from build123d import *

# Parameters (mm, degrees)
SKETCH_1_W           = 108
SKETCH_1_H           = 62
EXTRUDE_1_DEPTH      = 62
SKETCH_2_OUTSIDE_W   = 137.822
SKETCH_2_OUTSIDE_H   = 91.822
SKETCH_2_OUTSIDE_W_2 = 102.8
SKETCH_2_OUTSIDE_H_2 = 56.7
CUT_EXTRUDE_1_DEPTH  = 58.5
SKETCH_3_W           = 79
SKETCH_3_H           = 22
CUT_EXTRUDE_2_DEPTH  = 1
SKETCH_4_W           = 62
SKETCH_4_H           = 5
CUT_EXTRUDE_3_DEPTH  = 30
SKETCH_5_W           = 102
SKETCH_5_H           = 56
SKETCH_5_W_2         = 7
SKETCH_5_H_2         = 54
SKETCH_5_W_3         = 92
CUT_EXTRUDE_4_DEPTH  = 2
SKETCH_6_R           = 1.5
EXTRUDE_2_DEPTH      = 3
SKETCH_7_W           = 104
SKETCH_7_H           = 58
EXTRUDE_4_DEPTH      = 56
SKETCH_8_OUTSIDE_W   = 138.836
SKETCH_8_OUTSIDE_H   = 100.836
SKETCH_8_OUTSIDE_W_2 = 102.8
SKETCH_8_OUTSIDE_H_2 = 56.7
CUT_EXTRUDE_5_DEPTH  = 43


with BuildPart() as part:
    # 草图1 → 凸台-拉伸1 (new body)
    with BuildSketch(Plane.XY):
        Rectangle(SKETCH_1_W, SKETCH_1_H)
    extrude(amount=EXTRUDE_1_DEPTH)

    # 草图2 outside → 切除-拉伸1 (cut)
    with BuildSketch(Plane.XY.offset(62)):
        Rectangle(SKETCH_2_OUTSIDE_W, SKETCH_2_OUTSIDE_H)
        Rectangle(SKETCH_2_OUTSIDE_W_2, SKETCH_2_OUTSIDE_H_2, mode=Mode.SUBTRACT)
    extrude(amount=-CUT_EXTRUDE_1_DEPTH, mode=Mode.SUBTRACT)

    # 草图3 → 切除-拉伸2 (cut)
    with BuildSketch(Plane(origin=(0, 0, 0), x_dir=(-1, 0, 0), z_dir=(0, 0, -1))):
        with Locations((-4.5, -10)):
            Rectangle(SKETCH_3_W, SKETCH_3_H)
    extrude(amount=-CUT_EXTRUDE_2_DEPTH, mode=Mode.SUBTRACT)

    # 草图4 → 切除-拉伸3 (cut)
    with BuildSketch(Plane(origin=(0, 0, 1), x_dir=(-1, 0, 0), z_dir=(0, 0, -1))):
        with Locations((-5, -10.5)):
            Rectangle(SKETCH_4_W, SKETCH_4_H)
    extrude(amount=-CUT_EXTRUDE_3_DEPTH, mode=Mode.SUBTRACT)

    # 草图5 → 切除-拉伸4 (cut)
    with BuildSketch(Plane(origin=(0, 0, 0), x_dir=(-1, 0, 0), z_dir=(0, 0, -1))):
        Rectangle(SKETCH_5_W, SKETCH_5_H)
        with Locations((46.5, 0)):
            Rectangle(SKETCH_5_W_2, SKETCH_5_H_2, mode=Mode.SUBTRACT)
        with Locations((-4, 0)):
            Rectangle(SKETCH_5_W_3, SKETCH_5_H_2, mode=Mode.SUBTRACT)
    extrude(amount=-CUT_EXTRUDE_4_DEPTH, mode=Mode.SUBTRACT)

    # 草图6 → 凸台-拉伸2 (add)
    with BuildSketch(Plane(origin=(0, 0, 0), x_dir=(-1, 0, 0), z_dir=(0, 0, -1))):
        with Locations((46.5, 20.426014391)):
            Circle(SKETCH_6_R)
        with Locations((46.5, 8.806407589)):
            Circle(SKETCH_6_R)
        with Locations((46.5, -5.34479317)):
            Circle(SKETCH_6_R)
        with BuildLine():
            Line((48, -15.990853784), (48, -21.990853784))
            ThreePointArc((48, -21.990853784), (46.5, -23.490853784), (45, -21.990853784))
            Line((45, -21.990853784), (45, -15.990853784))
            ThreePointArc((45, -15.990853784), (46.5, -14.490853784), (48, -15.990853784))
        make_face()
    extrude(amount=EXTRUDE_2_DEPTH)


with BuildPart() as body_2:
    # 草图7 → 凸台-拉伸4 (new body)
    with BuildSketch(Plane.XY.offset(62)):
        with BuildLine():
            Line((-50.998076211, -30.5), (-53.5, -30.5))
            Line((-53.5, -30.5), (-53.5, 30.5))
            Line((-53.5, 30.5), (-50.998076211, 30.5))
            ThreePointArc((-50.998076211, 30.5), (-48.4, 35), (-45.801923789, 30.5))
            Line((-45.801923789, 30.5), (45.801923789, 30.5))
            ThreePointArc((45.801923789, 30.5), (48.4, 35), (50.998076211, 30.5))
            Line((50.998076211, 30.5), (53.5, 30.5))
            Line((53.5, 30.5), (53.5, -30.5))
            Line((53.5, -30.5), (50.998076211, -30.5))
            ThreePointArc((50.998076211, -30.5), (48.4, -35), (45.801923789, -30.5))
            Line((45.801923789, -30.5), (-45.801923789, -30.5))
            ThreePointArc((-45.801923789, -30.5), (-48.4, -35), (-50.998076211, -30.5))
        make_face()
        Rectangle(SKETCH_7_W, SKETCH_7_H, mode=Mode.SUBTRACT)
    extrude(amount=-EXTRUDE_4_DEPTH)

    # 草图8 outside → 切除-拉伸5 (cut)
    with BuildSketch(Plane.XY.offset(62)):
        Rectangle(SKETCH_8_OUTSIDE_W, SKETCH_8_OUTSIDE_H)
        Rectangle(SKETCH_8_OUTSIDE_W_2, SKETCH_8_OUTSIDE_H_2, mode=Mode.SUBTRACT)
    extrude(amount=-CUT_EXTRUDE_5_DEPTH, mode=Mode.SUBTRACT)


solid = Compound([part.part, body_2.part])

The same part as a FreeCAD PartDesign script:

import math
import FreeCAD as App
import Part
import Sketcher
Q = App.Units.Quantity


def add_polygon(sketch, points):
    """Adds a closed chain of lines whose ends are joined by coincident constraints."""
    first, n = sketch.GeometryCount, len(points)
    for a, b in zip(points, points[1:] + points[:1]):
        sketch.addGeometry(Part.LineSegment(App.Vector(*a, 0), App.Vector(*b, 0)), False)
    for i in range(n):
        sketch.addConstraint(Sketcher.Constraint("Coincident", first + i, 2, first + (i + 1) % n, 1))

doc = App.newDocument("Part")
body = doc.addObject("PartDesign::Body", "Body")

# Sketch on XY plane
sketch1 = body.newObject("Sketcher::SketchObject", "Sketch")
sketch1.AttachmentSupport = (doc.getObject("XY_Plane"), [""])
sketch1.MapMode = "FlatFace"
add_polygon(sketch1, [(-54, 31), (-54, -31), (54, -31), (54, 31)])  # lines 0-3
sketch1.addConstraint([
    Sketcher.Constraint("Vertical", 0),
    Sketcher.Constraint("Horizontal", 1),
    Sketcher.Constraint("Vertical", 2),
    Sketcher.Constraint("Horizontal", 3),
    Sketcher.Constraint("Symmetric", 0, 2, 2, 2, -1, 1),
    Sketcher.Constraint("DistanceX", 1, 1, 1, 2, Q("108 mm")),
    Sketcher.Constraint("DistanceY", 0, 2, 0, 1, Q("62 mm")),
])
pad1 = body.newObject("PartDesign::Pad", "Pad")
pad1.Profile = sketch1
pad1.Length = 62

# Sketch on XY plane
sketch2 = body.newObject("Sketcher::SketchObject", "Sketch001")
sketch2.AttachmentSupport = (doc.getObject("XY_Plane"), [""])
sketch2.MapMode = "FlatFace"
sketch2.AttachmentOffset = App.Placement(App.Vector(0, 0, 62), App.Rotation())
add_polygon(sketch2, [(-69, 46), (-69, -46), (69, -46), (69, 46)])  # lines 0-3
add_polygon(sketch2, [(51, -28), (-51, -28), (-51, 28), (51, 28)])  # lines 4-7
sketch2.addConstraint([
    Sketcher.Constraint("Vertical", 0),
    Sketcher.Constraint("Horizontal", 1),
    Sketcher.Constraint("Vertical", 2),
    Sketcher.Constraint("Horizontal", 3),
    Sketcher.Constraint("Horizontal", 4),
    Sketcher.Constraint("Vertical", 5),
    Sketcher.Constraint("Horizontal", 6),
    Sketcher.Constraint("Vertical", 7),
    Sketcher.Constraint("Symmetric", 0, 2, 2, 2, -1, 1),
    Sketcher.Constraint("Symmetric", 4, 2, 6, 2, -1, 1),
    Sketcher.Constraint("DistanceX", 4, 2, 4, 1, Q("102.8 mm")),
    Sketcher.Constraint("DistanceY", 5, 1, 5, 2, Q("56.7 mm")),
    Sketcher.Constraint("DistanceX", 1, 1, 1, 2, Q("137.822 mm")),
    Sketcher.Constraint("DistanceY", 0, 2, 0, 1, Q("91.822 mm")),
])
pocket1 = body.newObject("PartDesign::Pocket", "Pocket")
pocket1.Profile = sketch2
pocket1.Length = 58.5

# Sketch on XY plane
sketch3 = body.newObject("Sketcher::SketchObject", "Sketch002")
sketch3.AttachmentSupport = (doc.getObject("XY_Plane"), [""])
sketch3.MapMode = "FlatFace"
add_polygon(sketch3, [(44, 1), (44, -21), (-35, -21), (-35, 1)])  # lines 0-3
sketch3.addConstraint([
    Sketcher.Constraint("Vertical", 0),
    Sketcher.Constraint("Horizontal", 1),
    Sketcher.Constraint("Vertical", 2),
    Sketcher.Constraint("Horizontal", 3),
    Sketcher.Constraint("DistanceX", 1, 2, 1, 1, Q("79 mm")),
    Sketcher.Constraint("DistanceY", 0, 2, 0, 1, Q("22 mm")),
    Sketcher.Constraint("DistanceX", -1, 1, 0, 2, Q("44 mm")),
    Sketcher.Constraint("DistanceY", 0, 2, -1, 1, Q("21 mm")),
])
pocket2 = body.newObject("PartDesign::Pocket", "Pocket001")
pocket2.Profile = sketch3
pocket2.Length = 1
pocket2.Reversed = True

# Sketch on XY plane
sketch4 = body.newObject("Sketcher::SketchObject", "Sketch003")
sketch4.AttachmentSupport = (doc.getObject("XY_Plane"), [""])
sketch4.MapMode = "FlatFace"
sketch4.AttachmentOffset = App.Placement(App.Vector(0, 0, 1), App.Rotation())
add_polygon(sketch4, [(36, -8), (36, -13), (-26, -13), (-26, -8)])  # lines 0-3
sketch4.addConstraint([
    Sketcher.Constraint("Vertical", 0),
    Sketcher.Constraint("Horizontal", 1),
    Sketcher.Constraint("Vertical", 2),
    Sketcher.Constraint("Horizontal", 3),
    Sketcher.Constraint("DistanceX", 1, 2, 1, 1, Q("62 mm")),
    Sketcher.Constraint("DistanceY", 0, 2, 0, 1, Q("5 mm")),
    Sketcher.Constraint("DistanceX", -1, 1, 0, 2, Q("36 mm")),
    Sketcher.Constraint("DistanceY", 0, 2, -1, 1, Q("13 mm")),
])
pocket3 = body.newObject("PartDesign::Pocket", "Pocket002")
pocket3.Profile = sketch4
pocket3.Length = 30
pocket3.Reversed = True

# Sketch on XY plane
sketch5 = body.newObject("Sketcher::SketchObject", "Sketch004")
sketch5.AttachmentSupport = (doc.getObject("XY_Plane"), [""])
sketch5.MapMode = "FlatFace"
add_polygon(sketch5, [(51, 28), (51, -28), (-51, -28), (-51, 28)])  # lines 0-3
add_polygon(sketch5, [(-42, -27), (50, -27), (50, 27), (-42, 27)])  # lines 4-7
add_polygon(sketch5, [(-50, -27), (-43, -27), (-43, 27), (-50, 27)])  # lines 8-11
sketch5.addConstraint([
    Sketcher.Constraint("Vertical", 0),
    Sketcher.Constraint("Horizontal", 1),
    Sketcher.Constraint("Vertical", 2),
    Sketcher.Constraint("Horizontal", 3),
    Sketcher.Constraint("Horizontal", 4),
    Sketcher.Constraint("Vertical", 5),
    Sketcher.Constraint("Horizontal", 6),
    Sketcher.Constraint("Vertical", 7),
    Sketcher.Constraint("Horizontal", 8),
    Sketcher.Constraint("Vertical", 9),
    Sketcher.Constraint("Horizontal", 10),
    Sketcher.Constraint("Vertical", 11),
    Sketcher.Constraint("Symmetric", 0, 2, 2, 2, -1, 1),
    Sketcher.Constraint("Symmetric", 4, 2, 10, 2, -1, 1),
    Sketcher.Constraint("Horizontal", 7, 2, 8, 2),
    Sketcher.Constraint("Horizontal", 6, 2, 9, 2),
    Sketcher.Constraint("DistanceX", 1, 2, 1, 1, Q("102 mm")),
    Sketcher.Constraint("DistanceX", 4, 1, 4, 2, Q("92 mm")),
    Sketcher.Constraint("DistanceX", 8, 1, 8, 2, Q("7 mm")),
    Sketcher.Constraint("DistanceY", 0, 2, 0, 1, Q("56 mm")),
    Sketcher.Constraint("DistanceY", 5, 1, 5, 2, Q("54 mm")),
    Sketcher.Constraint("DistanceX", -1, 1, 4, 2, Q("50 mm")),
])
pocket4 = body.newObject("PartDesign::Pocket", "Pocket003")
pocket4.Profile = sketch5
pocket4.Length = 2
pocket4.Reversed = True

# Sketch on XY plane
sketch6 = body.newObject("Sketcher::SketchObject", "Sketch005")
sketch6.AttachmentSupport = (doc.getObject("XY_Plane"), [""])
sketch6.MapMode = "FlatFace"
sketch6.addGeometry([
    Part.Circle(App.Vector(-46.5, 20.4, 0), App.Vector(0, 0, 1), 1.5),  # 0
    Part.Circle(App.Vector(-46.5, 8.8, 0), App.Vector(0, 0, 1), 1.5),  # 1
    Part.Circle(App.Vector(-46.5, -5.3, 0), App.Vector(0, 0, 1), 1.5),  # 2
    Part.LineSegment(App.Vector(-48, -22, 0), App.Vector(-48, -16, 0)),  # 3
    Part.ArcOfCircle(Part.Circle(App.Vector(-46.5, -16, 0), App.Vector(0, 0, 1), 1.5), math.radians(0), math.radians(180)),  # 4
    Part.LineSegment(App.Vector(-45, -16, 0), App.Vector(-45, -22, 0)),  # 5
    Part.ArcOfCircle(Part.Circle(App.Vector(-46.5, -22, 0), App.Vector(0, 0, 1), 1.5), math.radians(180), math.radians(360)),  # 6
], False)
sketch6.addConstraint([
    Sketcher.Constraint("Tangent", 3, 2, 4, 2),
    Sketcher.Constraint("Tangent", 4, 1, 5, 1),
    Sketcher.Constraint("Tangent", 5, 2, 6, 2),
    Sketcher.Constraint("Tangent", 6, 1, 3, 1),
    Sketcher.Constraint("Vertical", 3),
    Sketcher.Constraint("Vertical", 5),
    Sketcher.Constraint("Equal", 0, 1),
    Sketcher.Constraint("Equal", 1, 2),
    Sketcher.Constraint("Equal", 2, 4),
    Sketcher.Constraint("Vertical", 0, 3, 1, 3),
    Sketcher.Constraint("Vertical", 1, 3, 2, 3),
    Sketcher.Constraint("Vertical", 2, 3, 4, 3),
    Sketcher.Constraint("Diameter", 0, Q("3 mm")),
    Sketcher.Constraint("DistanceY", 3, 1, 3, 2, Q("6 mm")),
    Sketcher.Constraint("DistanceX", 3, 2, -1, 1, Q("48 mm")),
    Sketcher.Constraint("DistanceY", 2, 3, 1, 3, Q("14.151201 mm")),
    Sketcher.Constraint("DistanceY", 4, 3, 2, 3, Q("10.646061 mm")),
    Sketcher.Constraint("DistanceY", 4, 3, 0, 3, Q("36.416868 mm")),
    Sketcher.Constraint("DistanceY", -1, 1, 0, 3, Q("20.426014 mm")),
])
pad2 = body.newObject("PartDesign::Pad", "Pad001")
pad2.Profile = sketch6
pad2.Length = 3
pad2.Reversed = True
body2 = doc.addObject("PartDesign::Body", "Body001")

# Sketch on XY plane
sketch7 = body2.newObject("Sketcher::SketchObject", "Sketch006")
sketch7.AttachmentSupport = (doc.getObject("XY_Plane001"), [""])
sketch7.MapMode = "FlatFace"
sketch7.AttachmentOffset = App.Placement(App.Vector(0, 0, 62), App.Rotation())
sketch7.addGeometry(Part.LineSegment(App.Vector(-53.5, -30.5, 0), App.Vector(-51, -30.5, 0)), False)  # 0
sketch7.addGeometry(Part.ArcOfCircle(Part.Circle(App.Vector(-48.4, -32, 0), App.Vector(0, 0, 1), 3), math.radians(150), math.radians(390)), False)  # 1
sketch7.addGeometry(Part.LineSegment(App.Vector(-45.8, -30.5, 0), App.Vector(45.8, -30.5, 0)), False)  # 2
sketch7.addGeometry(Part.ArcOfCircle(Part.Circle(App.Vector(48.4, -32, 0), App.Vector(0, 0, 1), 3), math.radians(150), math.radians(390)), False)  # 3
sketch7.addGeometry(Part.LineSegment(App.Vector(51, -30.5, 0), App.Vector(53.5, -30.5, 0)), False)  # 4
sketch7.addGeometry(Part.LineSegment(App.Vector(53.5, -30.5, 0), App.Vector(53.5, 30.5, 0)), False)  # 5
sketch7.addGeometry(Part.LineSegment(App.Vector(53.5, 30.5, 0), App.Vector(51, 30.5, 0)), False)  # 6
sketch7.addGeometry(Part.ArcOfCircle(Part.Circle(App.Vector(48.4, 32, 0), App.Vector(0, 0, 1), 3), math.radians(-30), math.radians(210)), False)  # 7
sketch7.addGeometry(Part.LineSegment(App.Vector(45.8, 30.5, 0), App.Vector(-45.8, 30.5, 0)), False)  # 8
sketch7.addGeometry(Part.ArcOfCircle(Part.Circle(App.Vector(-48.4, 32, 0), App.Vector(0, 0, 1), 3), math.radians(-30), math.radians(210)), False)  # 9
sketch7.addGeometry(Part.LineSegment(App.Vector(-51, 30.5, 0), App.Vector(-53.5, 30.5, 0)), False)  # 10
sketch7.addGeometry(Part.LineSegment(App.Vector(-53.5, 30.5, 0), App.Vector(-53.5, -30.5, 0)), False)  # 11
add_polygon(sketch7, [(-52, -29), (-52, 29), (52, 29), (52, -29)])  # lines 12-15
sketch7.addConstraint([
    Sketcher.Constraint("Coincident", 0, 2, 1, 1),
    Sketcher.Constraint("Coincident", 1, 2, 2, 1),
    Sketcher.Constraint("Coincident", 2, 2, 3, 1),
    Sketcher.Constraint("Coincident", 3, 2, 4, 1),
    Sketcher.Constraint("Coincident", 4, 2, 5, 1),
    Sketcher.Constraint("Coincident", 5, 2, 6, 1),
    Sketcher.Constraint("Coincident", 6, 2, 7, 1),
    Sketcher.Constraint("Coincident", 7, 2, 8, 1),
    Sketcher.Constraint("Coincident", 8, 2, 9, 1),
    Sketcher.Constraint("Coincident", 9, 2, 10, 1),
    Sketcher.Constraint("Coincident", 10, 2, 11, 1),
    Sketcher.Constraint("Coincident", 11, 2, 0, 1),
    Sketcher.Constraint("Horizontal", 0),
    Sketcher.Constraint("Horizontal", 2),
    Sketcher.Constraint("Horizontal", 4),
    Sketcher.Constraint("Vertical", 5),
    Sketcher.Constraint("Horizontal", 6),
    Sketcher.Constraint("Horizontal", 8),
    Sketcher.Constraint("Horizontal", 10),
    Sketcher.Constraint("Vertical", 11),
    Sketcher.Constraint("Vertical", 12),
    Sketcher.Constraint("Horizontal", 13),
    Sketcher.Constraint("Vertical", 14),
    Sketcher.Constraint("Horizontal", 15),
    Sketcher.Constraint("Equal", 1, 3),
    Sketcher.Constraint("Equal", 3, 7),
    Sketcher.Constraint("Equal", 7, 9),
    Sketcher.Constraint("Symmetric", 1, 3, 7, 3, -1, 1),
    Sketcher.Constraint("Symmetric", 3, 3, 9, 3, -1, 1),
    Sketcher.Constraint("Symmetric", 4, 2, 10, 2, -1, 1),
    Sketcher.Constraint("Symmetric", 12, 2, 14, 2, -1, 1),
    Sketcher.Constraint("Symmetric", 1, 3, 3, 3, -2),
    Sketcher.Constraint("Horizontal", 0, 2, 1, 2),
    Sketcher.Constraint("Horizontal", 2, 2, 3, 2),
    Sketcher.Constraint("Horizontal", 6, 2, 7, 2),
    Sketcher.Constraint("Horizontal", 8, 2, 9, 2),
    Sketcher.Constraint("Radius", 1, Q("3 mm")),
    Sketcher.Constraint("DistanceX", 13, 1, 13, 2, Q("104 mm")),
    Sketcher.Constraint("DistanceY", 5, 1, 5, 2, Q("61 mm")),
    Sketcher.Constraint("DistanceY", 12, 1, 12, 2, Q("58 mm")),
    Sketcher.Constraint("DistanceY", 1, 3, -1, 1, Q("32 mm")),
    Sketcher.Constraint("DistanceX", 1, 3, -1, 1, Q("48.4 mm")),
    Sketcher.Constraint("DistanceX", -1, 1, 4, 2, Q("53.5 mm")),
])
pad3 = body2.newObject("PartDesign::Pad", "Pad002")
pad3.Profile = sketch7
pad3.Length = 56
pad3.Reversed = True

# Sketch on XY plane
sketch8 = body2.newObject("Sketcher::SketchObject", "Sketch007")
sketch8.AttachmentSupport = (doc.getObject("XY_Plane001"), [""])
sketch8.MapMode = "FlatFace"
sketch8.AttachmentOffset = App.Placement(App.Vector(0, 0, 62), App.Rotation())
add_polygon(sketch8, [(-69, 50), (-69, -50), (69, -50), (69, 50)])  # lines 0-3
add_polygon(sketch8, [(51, -28), (-51, -28), (-51, 28), (51, 28)])  # lines 4-7
sketch8.addConstraint([
    Sketcher.Constraint("Vertical", 0),
    Sketcher.Constraint("Horizontal", 1),
    Sketcher.Constraint("Vertical", 2),
    Sketcher.Constraint("Horizontal", 3),
    Sketcher.Constraint("Horizontal", 4),
    Sketcher.Constraint("Vertical", 5),
    Sketcher.Constraint("Horizontal", 6),
    Sketcher.Constraint("Vertical", 7),
    Sketcher.Constraint("Symmetric", 0, 2, 2, 2, -1, 1),
    Sketcher.Constraint("Symmetric", 4, 2, 6, 2, -1, 1),
    Sketcher.Constraint("DistanceX", 4, 2, 4, 1, Q("102.8 mm")),
    Sketcher.Constraint("DistanceY", 5, 1, 5, 2, Q("56.7 mm")),
    Sketcher.Constraint("DistanceX", 1, 1, 1, 2, Q("138.836 mm")),
    Sketcher.Constraint("DistanceY", 0, 2, 0, 1, Q("100.836 mm")),
])
pocket5 = body2.newObject("PartDesign::Pocket", "Pocket004")
pocket5.Profile = sketch8
pocket5.Length = 43

doc.recompute()
